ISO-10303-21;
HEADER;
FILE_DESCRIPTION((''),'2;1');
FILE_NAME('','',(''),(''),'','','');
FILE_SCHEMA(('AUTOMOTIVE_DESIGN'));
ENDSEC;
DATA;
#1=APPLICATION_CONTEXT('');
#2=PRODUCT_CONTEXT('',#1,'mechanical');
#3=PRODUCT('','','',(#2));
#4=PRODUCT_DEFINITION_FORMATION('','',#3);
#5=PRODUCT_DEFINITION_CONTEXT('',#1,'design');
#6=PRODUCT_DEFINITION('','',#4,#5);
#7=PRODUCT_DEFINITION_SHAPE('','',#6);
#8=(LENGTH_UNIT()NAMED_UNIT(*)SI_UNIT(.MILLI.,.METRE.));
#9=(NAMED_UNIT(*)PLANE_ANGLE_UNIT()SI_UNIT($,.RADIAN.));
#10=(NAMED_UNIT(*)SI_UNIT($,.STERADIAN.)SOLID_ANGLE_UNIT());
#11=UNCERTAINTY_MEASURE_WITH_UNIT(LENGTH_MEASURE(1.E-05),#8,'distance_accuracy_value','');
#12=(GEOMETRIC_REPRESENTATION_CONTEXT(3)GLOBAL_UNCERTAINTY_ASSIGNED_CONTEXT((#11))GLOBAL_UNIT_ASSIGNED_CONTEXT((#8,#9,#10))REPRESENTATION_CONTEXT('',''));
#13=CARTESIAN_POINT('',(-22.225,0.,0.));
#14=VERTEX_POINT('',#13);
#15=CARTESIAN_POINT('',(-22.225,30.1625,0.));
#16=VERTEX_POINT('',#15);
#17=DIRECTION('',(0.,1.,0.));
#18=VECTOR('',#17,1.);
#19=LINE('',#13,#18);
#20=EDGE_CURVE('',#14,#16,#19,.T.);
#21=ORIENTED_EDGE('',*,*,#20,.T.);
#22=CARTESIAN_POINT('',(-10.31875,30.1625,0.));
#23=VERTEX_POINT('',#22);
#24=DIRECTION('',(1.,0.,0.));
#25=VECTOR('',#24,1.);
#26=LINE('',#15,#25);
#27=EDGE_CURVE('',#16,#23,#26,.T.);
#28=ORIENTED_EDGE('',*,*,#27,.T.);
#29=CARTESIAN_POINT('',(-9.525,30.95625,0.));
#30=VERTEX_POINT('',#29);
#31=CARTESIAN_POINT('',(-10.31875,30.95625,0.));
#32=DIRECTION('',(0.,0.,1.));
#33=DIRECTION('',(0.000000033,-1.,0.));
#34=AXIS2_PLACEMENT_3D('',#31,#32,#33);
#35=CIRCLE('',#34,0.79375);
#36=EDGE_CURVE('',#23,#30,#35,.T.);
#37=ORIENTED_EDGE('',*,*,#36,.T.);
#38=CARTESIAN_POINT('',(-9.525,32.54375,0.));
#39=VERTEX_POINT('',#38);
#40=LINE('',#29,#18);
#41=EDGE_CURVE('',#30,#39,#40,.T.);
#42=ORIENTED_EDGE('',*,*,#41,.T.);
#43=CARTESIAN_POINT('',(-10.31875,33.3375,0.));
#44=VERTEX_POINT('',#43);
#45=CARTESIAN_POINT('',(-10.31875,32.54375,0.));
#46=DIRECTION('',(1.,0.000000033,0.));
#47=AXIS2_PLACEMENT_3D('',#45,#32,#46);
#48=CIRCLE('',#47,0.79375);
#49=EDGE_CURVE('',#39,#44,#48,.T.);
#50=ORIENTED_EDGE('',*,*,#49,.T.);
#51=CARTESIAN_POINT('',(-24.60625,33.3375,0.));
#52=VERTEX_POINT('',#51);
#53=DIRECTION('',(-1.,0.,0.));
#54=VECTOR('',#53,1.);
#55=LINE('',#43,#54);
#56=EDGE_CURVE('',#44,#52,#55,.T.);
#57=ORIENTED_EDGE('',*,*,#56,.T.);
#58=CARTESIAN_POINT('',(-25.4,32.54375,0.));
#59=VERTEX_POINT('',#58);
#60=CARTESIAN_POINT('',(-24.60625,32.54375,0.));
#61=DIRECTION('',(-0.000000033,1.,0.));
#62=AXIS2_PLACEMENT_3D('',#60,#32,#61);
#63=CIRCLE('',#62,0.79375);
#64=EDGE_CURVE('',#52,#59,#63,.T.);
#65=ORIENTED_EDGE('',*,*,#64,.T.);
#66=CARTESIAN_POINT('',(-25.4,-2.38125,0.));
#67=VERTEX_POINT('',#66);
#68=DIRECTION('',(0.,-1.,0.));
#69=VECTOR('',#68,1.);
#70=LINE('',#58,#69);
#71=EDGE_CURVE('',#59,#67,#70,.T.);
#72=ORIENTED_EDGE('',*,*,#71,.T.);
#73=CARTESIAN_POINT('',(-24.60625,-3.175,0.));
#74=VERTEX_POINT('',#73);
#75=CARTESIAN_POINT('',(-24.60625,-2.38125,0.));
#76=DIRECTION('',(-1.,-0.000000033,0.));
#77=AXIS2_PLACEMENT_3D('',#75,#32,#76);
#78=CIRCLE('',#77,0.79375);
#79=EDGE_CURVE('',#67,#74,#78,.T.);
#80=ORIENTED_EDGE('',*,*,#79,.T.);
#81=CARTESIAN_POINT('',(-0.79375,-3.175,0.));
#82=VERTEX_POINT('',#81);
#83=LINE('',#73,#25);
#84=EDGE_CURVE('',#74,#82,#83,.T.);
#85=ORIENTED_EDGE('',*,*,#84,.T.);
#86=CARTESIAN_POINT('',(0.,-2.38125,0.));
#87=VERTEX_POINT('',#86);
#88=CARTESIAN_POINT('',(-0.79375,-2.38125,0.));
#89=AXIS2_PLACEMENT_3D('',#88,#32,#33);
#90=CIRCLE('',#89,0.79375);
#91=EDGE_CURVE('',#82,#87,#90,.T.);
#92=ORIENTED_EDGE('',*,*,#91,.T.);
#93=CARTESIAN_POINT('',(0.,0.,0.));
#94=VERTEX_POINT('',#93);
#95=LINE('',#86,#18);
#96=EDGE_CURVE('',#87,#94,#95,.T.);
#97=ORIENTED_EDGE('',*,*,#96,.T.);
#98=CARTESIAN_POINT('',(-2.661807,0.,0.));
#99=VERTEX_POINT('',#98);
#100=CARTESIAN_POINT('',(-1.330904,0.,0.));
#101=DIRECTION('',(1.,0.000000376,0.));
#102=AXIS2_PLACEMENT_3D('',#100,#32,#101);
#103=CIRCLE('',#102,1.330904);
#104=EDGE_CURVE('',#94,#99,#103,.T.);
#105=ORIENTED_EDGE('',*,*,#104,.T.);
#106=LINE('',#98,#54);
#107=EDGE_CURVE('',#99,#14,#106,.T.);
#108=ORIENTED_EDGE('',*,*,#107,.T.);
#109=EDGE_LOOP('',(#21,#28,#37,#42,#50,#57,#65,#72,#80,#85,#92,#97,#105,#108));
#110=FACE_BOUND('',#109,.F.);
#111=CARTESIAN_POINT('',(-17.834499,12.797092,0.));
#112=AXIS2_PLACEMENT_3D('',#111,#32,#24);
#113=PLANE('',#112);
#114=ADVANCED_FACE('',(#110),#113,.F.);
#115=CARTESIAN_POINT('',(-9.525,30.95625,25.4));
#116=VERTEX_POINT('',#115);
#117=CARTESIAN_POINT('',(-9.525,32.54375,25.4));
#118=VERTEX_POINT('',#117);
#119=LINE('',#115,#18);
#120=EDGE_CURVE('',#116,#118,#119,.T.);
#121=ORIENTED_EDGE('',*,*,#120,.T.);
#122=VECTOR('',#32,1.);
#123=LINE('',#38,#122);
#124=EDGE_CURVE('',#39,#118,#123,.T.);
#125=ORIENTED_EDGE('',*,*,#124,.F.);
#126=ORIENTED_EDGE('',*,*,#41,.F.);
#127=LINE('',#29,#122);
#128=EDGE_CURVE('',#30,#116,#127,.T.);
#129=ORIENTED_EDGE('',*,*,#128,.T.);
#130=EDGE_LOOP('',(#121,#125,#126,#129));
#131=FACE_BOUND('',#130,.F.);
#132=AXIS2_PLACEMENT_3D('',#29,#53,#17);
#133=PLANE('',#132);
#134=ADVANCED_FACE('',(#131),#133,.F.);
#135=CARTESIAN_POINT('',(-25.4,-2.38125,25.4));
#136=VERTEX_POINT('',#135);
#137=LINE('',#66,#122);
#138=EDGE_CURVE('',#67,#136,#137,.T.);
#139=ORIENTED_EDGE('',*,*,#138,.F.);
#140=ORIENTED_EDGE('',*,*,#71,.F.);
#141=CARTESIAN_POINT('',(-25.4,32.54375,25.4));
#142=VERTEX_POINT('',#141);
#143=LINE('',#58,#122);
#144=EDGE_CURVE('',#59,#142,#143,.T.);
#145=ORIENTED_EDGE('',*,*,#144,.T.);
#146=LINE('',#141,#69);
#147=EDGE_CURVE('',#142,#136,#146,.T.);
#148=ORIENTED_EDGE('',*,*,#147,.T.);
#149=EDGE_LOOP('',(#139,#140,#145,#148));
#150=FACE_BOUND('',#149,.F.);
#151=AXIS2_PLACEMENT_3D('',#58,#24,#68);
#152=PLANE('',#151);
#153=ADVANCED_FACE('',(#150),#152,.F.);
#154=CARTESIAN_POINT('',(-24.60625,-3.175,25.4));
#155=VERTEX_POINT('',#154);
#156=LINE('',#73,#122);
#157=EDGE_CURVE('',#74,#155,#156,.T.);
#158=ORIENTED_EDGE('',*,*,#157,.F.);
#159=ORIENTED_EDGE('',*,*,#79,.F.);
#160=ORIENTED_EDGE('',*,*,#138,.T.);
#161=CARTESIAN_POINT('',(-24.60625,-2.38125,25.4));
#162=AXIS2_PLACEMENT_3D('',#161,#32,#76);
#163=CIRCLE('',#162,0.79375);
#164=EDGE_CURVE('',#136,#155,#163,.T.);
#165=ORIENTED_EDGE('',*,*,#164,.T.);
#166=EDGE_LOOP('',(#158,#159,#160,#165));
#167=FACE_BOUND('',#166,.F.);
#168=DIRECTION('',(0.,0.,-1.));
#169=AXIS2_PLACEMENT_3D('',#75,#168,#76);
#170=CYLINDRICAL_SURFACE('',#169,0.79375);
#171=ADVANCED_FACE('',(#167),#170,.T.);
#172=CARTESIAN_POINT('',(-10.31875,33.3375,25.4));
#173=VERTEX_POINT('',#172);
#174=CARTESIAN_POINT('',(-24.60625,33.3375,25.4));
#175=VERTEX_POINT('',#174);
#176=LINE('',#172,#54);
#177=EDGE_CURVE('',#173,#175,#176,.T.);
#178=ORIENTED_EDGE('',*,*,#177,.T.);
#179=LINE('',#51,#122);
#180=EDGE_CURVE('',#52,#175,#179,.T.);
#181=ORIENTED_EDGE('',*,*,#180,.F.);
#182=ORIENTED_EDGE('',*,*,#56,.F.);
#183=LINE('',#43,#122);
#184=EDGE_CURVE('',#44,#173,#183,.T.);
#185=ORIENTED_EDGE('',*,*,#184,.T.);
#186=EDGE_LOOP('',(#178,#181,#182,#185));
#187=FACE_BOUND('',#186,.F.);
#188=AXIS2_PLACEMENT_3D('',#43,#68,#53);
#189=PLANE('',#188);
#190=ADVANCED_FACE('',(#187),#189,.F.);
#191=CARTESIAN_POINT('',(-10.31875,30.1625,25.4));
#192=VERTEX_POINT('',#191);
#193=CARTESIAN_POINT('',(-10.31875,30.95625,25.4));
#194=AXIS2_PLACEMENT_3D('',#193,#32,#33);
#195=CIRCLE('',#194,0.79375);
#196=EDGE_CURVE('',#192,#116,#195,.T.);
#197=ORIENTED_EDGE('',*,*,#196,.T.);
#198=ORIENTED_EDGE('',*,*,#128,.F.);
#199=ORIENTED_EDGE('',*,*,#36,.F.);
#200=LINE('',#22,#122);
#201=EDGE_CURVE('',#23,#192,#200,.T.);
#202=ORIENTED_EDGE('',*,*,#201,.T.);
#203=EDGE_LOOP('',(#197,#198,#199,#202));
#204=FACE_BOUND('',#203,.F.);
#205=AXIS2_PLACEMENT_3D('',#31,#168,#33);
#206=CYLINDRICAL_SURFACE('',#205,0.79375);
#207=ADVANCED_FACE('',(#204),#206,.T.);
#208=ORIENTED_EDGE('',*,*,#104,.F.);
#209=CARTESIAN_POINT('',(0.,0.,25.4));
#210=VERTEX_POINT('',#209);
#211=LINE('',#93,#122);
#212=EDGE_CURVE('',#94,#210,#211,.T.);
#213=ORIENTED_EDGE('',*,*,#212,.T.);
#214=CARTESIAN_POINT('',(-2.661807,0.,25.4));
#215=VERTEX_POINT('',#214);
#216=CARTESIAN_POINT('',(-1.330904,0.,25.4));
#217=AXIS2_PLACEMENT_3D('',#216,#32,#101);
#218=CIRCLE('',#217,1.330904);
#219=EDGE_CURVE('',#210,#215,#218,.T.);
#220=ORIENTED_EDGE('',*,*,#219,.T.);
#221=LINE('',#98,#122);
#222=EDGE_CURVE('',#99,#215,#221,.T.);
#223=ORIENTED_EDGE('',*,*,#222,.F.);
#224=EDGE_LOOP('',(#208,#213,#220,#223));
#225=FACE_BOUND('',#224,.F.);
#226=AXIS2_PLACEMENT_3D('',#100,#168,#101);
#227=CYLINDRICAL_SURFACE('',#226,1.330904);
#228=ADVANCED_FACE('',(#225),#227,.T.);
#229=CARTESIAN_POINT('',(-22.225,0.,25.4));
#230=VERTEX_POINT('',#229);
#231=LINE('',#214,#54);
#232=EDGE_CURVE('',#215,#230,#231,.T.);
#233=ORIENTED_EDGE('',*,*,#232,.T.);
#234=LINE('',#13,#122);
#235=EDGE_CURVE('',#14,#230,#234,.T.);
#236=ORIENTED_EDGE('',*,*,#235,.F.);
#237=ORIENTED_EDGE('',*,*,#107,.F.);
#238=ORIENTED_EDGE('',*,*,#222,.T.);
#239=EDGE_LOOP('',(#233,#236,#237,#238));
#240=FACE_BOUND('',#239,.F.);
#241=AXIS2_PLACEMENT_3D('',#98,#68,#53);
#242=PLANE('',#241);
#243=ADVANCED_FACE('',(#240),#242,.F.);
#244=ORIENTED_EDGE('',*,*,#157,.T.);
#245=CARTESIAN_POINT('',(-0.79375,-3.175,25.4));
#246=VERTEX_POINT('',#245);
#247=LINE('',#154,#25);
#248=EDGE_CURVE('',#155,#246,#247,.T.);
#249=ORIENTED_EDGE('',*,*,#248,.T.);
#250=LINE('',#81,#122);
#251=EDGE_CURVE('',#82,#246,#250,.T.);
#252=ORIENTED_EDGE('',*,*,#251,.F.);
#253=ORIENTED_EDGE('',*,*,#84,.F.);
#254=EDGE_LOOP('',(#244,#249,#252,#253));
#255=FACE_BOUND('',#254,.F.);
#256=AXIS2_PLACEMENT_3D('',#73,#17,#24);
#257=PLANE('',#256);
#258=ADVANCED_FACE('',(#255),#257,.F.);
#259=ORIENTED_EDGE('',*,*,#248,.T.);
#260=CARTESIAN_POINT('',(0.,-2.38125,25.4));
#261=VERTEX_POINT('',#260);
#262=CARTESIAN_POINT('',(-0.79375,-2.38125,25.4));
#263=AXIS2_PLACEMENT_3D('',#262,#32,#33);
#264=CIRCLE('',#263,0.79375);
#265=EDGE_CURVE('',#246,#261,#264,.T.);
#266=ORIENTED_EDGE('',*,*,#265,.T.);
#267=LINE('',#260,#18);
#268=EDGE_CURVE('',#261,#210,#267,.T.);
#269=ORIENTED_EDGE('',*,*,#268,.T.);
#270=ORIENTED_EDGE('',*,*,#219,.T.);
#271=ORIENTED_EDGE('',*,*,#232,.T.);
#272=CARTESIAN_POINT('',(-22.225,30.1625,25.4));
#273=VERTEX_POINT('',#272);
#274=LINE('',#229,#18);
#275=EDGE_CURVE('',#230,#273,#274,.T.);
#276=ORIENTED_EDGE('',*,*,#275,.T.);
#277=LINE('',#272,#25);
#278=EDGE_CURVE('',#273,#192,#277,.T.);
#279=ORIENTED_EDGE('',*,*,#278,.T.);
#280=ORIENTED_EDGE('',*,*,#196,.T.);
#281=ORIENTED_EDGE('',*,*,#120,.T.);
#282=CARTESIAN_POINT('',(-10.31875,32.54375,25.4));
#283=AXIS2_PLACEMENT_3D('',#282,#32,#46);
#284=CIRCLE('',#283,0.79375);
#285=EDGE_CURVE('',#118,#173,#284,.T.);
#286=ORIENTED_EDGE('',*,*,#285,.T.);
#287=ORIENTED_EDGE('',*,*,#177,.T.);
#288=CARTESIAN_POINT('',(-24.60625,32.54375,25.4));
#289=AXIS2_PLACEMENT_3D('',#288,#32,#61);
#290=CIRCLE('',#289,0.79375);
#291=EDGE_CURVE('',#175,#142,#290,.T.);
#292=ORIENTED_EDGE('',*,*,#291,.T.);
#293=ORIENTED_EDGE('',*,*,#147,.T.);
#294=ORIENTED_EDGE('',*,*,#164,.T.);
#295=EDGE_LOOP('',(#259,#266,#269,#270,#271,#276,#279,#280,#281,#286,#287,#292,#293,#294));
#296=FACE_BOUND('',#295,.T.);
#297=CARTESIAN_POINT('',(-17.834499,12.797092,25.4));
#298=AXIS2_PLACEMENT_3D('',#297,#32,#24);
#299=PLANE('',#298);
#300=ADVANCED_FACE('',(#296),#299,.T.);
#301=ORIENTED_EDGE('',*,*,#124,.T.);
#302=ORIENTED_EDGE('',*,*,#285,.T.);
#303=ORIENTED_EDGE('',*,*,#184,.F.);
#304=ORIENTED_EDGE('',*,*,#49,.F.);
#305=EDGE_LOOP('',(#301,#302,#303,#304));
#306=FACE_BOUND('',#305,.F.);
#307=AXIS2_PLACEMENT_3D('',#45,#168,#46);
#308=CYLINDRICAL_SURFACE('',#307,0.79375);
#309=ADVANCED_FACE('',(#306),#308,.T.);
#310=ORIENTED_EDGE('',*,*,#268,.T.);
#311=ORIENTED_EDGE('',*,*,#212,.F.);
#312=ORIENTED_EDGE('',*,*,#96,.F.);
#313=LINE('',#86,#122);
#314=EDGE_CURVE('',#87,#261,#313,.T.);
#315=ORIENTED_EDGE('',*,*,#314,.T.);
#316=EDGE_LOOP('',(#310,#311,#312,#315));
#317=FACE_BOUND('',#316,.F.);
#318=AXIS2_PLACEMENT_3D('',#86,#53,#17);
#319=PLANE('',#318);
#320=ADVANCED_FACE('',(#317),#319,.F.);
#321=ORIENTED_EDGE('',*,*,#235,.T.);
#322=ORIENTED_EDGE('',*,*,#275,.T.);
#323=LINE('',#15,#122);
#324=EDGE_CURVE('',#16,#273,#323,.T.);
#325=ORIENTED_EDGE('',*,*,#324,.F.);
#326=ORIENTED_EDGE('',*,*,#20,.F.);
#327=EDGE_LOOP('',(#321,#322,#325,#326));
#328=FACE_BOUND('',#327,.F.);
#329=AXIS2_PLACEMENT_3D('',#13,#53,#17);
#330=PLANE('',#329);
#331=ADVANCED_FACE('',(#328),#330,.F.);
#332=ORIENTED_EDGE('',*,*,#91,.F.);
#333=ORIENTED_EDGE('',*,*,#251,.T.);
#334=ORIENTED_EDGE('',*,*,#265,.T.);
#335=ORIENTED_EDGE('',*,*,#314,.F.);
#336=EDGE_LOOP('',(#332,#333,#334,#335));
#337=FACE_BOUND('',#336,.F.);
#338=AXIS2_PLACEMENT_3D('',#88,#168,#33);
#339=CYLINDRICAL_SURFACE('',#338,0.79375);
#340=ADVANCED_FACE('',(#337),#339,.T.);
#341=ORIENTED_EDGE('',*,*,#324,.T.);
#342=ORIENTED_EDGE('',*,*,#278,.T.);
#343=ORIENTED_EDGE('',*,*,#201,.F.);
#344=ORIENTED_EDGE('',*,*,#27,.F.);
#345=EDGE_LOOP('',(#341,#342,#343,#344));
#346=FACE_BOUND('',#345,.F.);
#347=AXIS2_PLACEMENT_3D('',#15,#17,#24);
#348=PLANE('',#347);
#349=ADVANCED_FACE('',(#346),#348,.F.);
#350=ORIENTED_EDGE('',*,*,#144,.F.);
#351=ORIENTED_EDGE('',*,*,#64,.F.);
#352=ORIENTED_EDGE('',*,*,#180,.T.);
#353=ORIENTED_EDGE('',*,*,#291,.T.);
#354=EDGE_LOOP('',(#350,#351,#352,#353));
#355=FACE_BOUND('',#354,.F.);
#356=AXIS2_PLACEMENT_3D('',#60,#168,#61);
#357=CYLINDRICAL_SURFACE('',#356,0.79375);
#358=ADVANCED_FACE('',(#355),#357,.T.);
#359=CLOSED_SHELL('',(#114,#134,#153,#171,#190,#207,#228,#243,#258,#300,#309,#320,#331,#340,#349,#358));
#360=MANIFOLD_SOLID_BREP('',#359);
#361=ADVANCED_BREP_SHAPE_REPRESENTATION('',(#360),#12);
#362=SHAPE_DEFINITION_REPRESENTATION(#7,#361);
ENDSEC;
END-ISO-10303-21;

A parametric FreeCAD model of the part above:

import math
import FreeCAD as App
import Part
import Sketcher

V = App.Vector
Q = App.Units.Quantity

doc = App.newDocument("Part")
body = doc.addObject("PartDesign::Body", "Body")

sketch1 = body.newObject("Sketcher::SketchObject", "Sketch")
sketch1.AttachmentSupport = (doc.getObject("XY_Plane"), [""])
sketch1.MapMode = "FlatFace"
sketch1.addGeometry([
    Part.LineSegment(V(-2.7, 0, 0), V(-22.2, 0, 0)),
    Part.LineSegment(V(-22.2, 0, 0), V(-22.2, 30.2, 0)),
    Part.LineSegment(V(-22.2, 30.2, 0), V(-10.3, 30.2, 0)),
    Part.ArcOfCircle(Part.Circle(V(-10.3, 31, 0), V(0, 0, 1), 0.8), math.radians(-90), math.radians(0)),
    Part.LineSegment(V(-9.5, 31, 0), V(-9.5, 32.5, 0)),
    Part.ArcOfCircle(Part.Circle(V(-10.3, 32.5, 0), V(0, 0, 1), 0.8), math.radians(0), math.radians(90)),
    Part.LineSegment(V(-10.3, 33.3, 0), V(-24.6, 33.3, 0)),
    Part.ArcOfCircle(Part.Circle(V(-24.6, 32.5, 0), V(0, 0, 1), 0.8), math.radians(90), math.radians(180)),
    Part.LineSegment(V(-25.4, 32.5, 0), V(-25.4, -2.4, 0)),
    Part.ArcOfCircle(Part.Circle(V(-24.6, -2.4, 0), V(0, 0, 1), 0.8), math.radians(-180), math.radians(-90)),
    Part.LineSegment(V(-24.6, -3.2, 0), V(-0.8, -3.2, 0)),
    Part.ArcOfCircle(Part.Circle(V(-0.8, -2.4, 0), V(0, 0, 1), 0.8), math.radians(-90), math.radians(0)),
    Part.LineSegment(V(0, -2.4, 0), V(0, 0, 0)),
    Part.ArcOfCircle(Part.Circle(V(-1.3, 0, 0), V(0, 0, 1), 1.3), math.radians(0), math.radians(180)),
], False)
sketch1.addConstraint([
    Sketcher.Constraint("Coincident", 0, 2, 1, 1),
    Sketcher.Constraint("Coincident", 1, 2, 2, 1),
    Sketcher.Constraint("Tangent", 2, 2, 3, 1),
    Sketcher.Constraint("Tangent", 3, 2, 4, 1),
    Sketcher.Constraint("Tangent", 4, 2, 5, 1),
    Sketcher.Constraint("Tangent", 5, 2, 6, 1),
    Sketcher.Constraint("Tangent", 6, 2, 7, 1),
    Sketcher.Constraint("Tangent", 7, 2, 8, 1),
    Sketcher.Constraint("Tangent", 8, 2, 9, 1),
    Sketcher.Constraint("Tangent", 9, 2, 10, 1),
    Sketcher.Constraint("Tangent", 10, 2, 11, 1),
    Sketcher.Constraint("Tangent", 11, 2, 12, 1),
    Sketcher.Constraint("Tangent", 12, 2, 13, 1),
    Sketcher.Constraint("Coincident", 13, 2, 0, 1),
    Sketcher.Constraint("Horizontal", 0),
    Sketcher.Constraint("Vertical", 1),
    Sketcher.Constraint("Horizontal", 2),
    Sketcher.Constraint("Vertical", 4),
    Sketcher.Constraint("Horizontal", 6),
    Sketcher.Constraint("Vertical", 8),
    Sketcher.Constraint("Horizontal", 10),
    Sketcher.Constraint("Vertical", 12),
    Sketcher.Constraint("Coincident", 12, 2, -1, 1),
    Sketcher.Constraint("Equal", 3, 5),
    Sketcher.Constraint("Equal", 5, 7),
    Sketcher.Constraint("Equal", 7, 9),
    Sketcher.Constraint("Equal", 9, 11),
    Sketcher.Constraint("PointOnObject", 0, 2, -1),
    Sketcher.Constraint("DistanceX", 7, 2, -1, 1, Q("1 in")),
    Sketcher.Constraint("Radius", 3, Q("0.03125 in")),
    Sketcher.Constraint("DistanceX", 1, 2, 3, 2, Q("0.5 in")),
    Sketcher.Constraint("DistanceX", 6, 2, 6, 1, Q("0.5625 in")),
    Sketcher.Constraint("DistanceY", 1, 1, 1, 2, Q("1.1875 in")),
    Sketcher.Constraint("DistanceY", 4, 1, 4, 2, Q("0.0625 in")),
    Sketcher.Constraint("DistanceY", 8, 2, 8, 1, Q("1.375 in")),
    Sketcher.Constraint("Radius", 13, 1.330904),
])
pad1 = body.newObject("PartDesign::Pad", "Pad")
pad1.Profile = sketch1
pad1.Length = Q("1 in")

doc.recompute()
